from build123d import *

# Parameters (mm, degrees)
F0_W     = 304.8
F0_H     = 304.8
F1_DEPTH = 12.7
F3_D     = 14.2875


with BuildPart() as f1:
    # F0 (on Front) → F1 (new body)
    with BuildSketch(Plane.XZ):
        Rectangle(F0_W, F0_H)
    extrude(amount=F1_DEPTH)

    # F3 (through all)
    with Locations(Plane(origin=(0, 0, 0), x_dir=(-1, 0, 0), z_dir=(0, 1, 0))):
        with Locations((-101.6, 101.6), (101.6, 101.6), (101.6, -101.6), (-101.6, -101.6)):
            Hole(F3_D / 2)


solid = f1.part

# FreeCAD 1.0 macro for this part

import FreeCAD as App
import Part
import Sketcher
Q = App.Units.Quantity


def add_polygon(sketch, points):
    """Adds a closed chain of lines whose ends are joined by coincident constraints."""
    first, n = sketch.GeometryCount, len(points)
    for a, b in zip(points, points[1:] + points[:1]):
        sketch.addGeometry(Part.LineSegment(App.Vector(*a, 0), App.Vector(*b, 0)), False)
    for i in range(n):
        sketch.addConstraint(Sketcher.Constraint("Coincident", first + i, 2, first + (i + 1) % n, 1))

doc = App.newDocument("Part")
body = doc.addObject("PartDesign::Body", "Body")

sketch1 = body.newObject("Sketcher::SketchObject", "Sketch")
sketch1.AttachmentSupport = (doc.getObject("XZ_Plane"), [""])
sketch1.MapMode = "FlatFace"
add_polygon(sketch1, [(-152, 152), (-152, -152), (152, -152), (152, 152)])
sketch1.addConstraint([
    Sketcher.Constraint("Vertical", 0),
    Sketcher.Constraint("Horizontal", 1),
    Sketcher.Constraint("Vertical", 2),
    Sketcher.Constraint("Horizontal", 3),
    Sketcher.Constraint("Symmetric", 0, 2, 2, 2, -1, 1),
    Sketcher.Constraint("Equal", 3, 0),
    Sketcher.Constraint("DistanceX", 1, 1, 1, 2, Q("12 in")),
])
pad1 = body.newObject("PartDesign::Pad", "Pad")
pad1.Profile = sketch1
pad1.Length = Q("0.5 in")

sketch2 = body.newObject("Sketcher::SketchObject", "Sketch001")
sketch2.AttachmentSupport = (doc.getObject("XZ_Plane"), [""])
sketch2.MapMode = "FlatFace"
sketch2.addGeometry([
    Part.Circle(App.Vector(102, 102, 0), App.Vector(0, 0, 1), 7),
    Part.Circle(App.Vector(-102, 102, 0), App.Vector(0, 0, 1), 7),
    Part.Circle(App.Vector(-102, -102, 0), App.Vector(0, 0, 1), 7),
    Part.Circle(App.Vector(102, -102, 0), App.Vector(0, 0, 1), 7),
], False)
sketch2.addConstraint([
    Sketcher.Constraint("Equal", 0, 1),
    Sketcher.Constraint("Equal", 1, 2),
    Sketcher.Constraint("Equal", 2, 3),
    Sketcher.Constraint("Symmetric", 0, 3, 2, 3, -1, 1),
    Sketcher.Constraint("Symmetric", 1, 3, 3, 3, -1, 1),
    Sketcher.Constraint("Symmetric", 0, 3, 1, 3, -2),
    Sketcher.Constraint("Diameter", 0, Q("0.5625 in")),
    Sketcher.Constraint("DistanceX", -1, 1, 0, 3, Q("4 in")),
    Sketcher.Constraint("DistanceY", -1, 1, 0, 3, Q("4 in")),
])
doc.recompute()
hole = body.newObject("PartDesign::Hole", "Hole")
hole.Profile = sketch2
hole.ThreadType = "None"
hole.Diameter = Q("0.5625 in")
hole.DepthType = "ThroughAll"
hole.Reversed = True

doc.recompute()
